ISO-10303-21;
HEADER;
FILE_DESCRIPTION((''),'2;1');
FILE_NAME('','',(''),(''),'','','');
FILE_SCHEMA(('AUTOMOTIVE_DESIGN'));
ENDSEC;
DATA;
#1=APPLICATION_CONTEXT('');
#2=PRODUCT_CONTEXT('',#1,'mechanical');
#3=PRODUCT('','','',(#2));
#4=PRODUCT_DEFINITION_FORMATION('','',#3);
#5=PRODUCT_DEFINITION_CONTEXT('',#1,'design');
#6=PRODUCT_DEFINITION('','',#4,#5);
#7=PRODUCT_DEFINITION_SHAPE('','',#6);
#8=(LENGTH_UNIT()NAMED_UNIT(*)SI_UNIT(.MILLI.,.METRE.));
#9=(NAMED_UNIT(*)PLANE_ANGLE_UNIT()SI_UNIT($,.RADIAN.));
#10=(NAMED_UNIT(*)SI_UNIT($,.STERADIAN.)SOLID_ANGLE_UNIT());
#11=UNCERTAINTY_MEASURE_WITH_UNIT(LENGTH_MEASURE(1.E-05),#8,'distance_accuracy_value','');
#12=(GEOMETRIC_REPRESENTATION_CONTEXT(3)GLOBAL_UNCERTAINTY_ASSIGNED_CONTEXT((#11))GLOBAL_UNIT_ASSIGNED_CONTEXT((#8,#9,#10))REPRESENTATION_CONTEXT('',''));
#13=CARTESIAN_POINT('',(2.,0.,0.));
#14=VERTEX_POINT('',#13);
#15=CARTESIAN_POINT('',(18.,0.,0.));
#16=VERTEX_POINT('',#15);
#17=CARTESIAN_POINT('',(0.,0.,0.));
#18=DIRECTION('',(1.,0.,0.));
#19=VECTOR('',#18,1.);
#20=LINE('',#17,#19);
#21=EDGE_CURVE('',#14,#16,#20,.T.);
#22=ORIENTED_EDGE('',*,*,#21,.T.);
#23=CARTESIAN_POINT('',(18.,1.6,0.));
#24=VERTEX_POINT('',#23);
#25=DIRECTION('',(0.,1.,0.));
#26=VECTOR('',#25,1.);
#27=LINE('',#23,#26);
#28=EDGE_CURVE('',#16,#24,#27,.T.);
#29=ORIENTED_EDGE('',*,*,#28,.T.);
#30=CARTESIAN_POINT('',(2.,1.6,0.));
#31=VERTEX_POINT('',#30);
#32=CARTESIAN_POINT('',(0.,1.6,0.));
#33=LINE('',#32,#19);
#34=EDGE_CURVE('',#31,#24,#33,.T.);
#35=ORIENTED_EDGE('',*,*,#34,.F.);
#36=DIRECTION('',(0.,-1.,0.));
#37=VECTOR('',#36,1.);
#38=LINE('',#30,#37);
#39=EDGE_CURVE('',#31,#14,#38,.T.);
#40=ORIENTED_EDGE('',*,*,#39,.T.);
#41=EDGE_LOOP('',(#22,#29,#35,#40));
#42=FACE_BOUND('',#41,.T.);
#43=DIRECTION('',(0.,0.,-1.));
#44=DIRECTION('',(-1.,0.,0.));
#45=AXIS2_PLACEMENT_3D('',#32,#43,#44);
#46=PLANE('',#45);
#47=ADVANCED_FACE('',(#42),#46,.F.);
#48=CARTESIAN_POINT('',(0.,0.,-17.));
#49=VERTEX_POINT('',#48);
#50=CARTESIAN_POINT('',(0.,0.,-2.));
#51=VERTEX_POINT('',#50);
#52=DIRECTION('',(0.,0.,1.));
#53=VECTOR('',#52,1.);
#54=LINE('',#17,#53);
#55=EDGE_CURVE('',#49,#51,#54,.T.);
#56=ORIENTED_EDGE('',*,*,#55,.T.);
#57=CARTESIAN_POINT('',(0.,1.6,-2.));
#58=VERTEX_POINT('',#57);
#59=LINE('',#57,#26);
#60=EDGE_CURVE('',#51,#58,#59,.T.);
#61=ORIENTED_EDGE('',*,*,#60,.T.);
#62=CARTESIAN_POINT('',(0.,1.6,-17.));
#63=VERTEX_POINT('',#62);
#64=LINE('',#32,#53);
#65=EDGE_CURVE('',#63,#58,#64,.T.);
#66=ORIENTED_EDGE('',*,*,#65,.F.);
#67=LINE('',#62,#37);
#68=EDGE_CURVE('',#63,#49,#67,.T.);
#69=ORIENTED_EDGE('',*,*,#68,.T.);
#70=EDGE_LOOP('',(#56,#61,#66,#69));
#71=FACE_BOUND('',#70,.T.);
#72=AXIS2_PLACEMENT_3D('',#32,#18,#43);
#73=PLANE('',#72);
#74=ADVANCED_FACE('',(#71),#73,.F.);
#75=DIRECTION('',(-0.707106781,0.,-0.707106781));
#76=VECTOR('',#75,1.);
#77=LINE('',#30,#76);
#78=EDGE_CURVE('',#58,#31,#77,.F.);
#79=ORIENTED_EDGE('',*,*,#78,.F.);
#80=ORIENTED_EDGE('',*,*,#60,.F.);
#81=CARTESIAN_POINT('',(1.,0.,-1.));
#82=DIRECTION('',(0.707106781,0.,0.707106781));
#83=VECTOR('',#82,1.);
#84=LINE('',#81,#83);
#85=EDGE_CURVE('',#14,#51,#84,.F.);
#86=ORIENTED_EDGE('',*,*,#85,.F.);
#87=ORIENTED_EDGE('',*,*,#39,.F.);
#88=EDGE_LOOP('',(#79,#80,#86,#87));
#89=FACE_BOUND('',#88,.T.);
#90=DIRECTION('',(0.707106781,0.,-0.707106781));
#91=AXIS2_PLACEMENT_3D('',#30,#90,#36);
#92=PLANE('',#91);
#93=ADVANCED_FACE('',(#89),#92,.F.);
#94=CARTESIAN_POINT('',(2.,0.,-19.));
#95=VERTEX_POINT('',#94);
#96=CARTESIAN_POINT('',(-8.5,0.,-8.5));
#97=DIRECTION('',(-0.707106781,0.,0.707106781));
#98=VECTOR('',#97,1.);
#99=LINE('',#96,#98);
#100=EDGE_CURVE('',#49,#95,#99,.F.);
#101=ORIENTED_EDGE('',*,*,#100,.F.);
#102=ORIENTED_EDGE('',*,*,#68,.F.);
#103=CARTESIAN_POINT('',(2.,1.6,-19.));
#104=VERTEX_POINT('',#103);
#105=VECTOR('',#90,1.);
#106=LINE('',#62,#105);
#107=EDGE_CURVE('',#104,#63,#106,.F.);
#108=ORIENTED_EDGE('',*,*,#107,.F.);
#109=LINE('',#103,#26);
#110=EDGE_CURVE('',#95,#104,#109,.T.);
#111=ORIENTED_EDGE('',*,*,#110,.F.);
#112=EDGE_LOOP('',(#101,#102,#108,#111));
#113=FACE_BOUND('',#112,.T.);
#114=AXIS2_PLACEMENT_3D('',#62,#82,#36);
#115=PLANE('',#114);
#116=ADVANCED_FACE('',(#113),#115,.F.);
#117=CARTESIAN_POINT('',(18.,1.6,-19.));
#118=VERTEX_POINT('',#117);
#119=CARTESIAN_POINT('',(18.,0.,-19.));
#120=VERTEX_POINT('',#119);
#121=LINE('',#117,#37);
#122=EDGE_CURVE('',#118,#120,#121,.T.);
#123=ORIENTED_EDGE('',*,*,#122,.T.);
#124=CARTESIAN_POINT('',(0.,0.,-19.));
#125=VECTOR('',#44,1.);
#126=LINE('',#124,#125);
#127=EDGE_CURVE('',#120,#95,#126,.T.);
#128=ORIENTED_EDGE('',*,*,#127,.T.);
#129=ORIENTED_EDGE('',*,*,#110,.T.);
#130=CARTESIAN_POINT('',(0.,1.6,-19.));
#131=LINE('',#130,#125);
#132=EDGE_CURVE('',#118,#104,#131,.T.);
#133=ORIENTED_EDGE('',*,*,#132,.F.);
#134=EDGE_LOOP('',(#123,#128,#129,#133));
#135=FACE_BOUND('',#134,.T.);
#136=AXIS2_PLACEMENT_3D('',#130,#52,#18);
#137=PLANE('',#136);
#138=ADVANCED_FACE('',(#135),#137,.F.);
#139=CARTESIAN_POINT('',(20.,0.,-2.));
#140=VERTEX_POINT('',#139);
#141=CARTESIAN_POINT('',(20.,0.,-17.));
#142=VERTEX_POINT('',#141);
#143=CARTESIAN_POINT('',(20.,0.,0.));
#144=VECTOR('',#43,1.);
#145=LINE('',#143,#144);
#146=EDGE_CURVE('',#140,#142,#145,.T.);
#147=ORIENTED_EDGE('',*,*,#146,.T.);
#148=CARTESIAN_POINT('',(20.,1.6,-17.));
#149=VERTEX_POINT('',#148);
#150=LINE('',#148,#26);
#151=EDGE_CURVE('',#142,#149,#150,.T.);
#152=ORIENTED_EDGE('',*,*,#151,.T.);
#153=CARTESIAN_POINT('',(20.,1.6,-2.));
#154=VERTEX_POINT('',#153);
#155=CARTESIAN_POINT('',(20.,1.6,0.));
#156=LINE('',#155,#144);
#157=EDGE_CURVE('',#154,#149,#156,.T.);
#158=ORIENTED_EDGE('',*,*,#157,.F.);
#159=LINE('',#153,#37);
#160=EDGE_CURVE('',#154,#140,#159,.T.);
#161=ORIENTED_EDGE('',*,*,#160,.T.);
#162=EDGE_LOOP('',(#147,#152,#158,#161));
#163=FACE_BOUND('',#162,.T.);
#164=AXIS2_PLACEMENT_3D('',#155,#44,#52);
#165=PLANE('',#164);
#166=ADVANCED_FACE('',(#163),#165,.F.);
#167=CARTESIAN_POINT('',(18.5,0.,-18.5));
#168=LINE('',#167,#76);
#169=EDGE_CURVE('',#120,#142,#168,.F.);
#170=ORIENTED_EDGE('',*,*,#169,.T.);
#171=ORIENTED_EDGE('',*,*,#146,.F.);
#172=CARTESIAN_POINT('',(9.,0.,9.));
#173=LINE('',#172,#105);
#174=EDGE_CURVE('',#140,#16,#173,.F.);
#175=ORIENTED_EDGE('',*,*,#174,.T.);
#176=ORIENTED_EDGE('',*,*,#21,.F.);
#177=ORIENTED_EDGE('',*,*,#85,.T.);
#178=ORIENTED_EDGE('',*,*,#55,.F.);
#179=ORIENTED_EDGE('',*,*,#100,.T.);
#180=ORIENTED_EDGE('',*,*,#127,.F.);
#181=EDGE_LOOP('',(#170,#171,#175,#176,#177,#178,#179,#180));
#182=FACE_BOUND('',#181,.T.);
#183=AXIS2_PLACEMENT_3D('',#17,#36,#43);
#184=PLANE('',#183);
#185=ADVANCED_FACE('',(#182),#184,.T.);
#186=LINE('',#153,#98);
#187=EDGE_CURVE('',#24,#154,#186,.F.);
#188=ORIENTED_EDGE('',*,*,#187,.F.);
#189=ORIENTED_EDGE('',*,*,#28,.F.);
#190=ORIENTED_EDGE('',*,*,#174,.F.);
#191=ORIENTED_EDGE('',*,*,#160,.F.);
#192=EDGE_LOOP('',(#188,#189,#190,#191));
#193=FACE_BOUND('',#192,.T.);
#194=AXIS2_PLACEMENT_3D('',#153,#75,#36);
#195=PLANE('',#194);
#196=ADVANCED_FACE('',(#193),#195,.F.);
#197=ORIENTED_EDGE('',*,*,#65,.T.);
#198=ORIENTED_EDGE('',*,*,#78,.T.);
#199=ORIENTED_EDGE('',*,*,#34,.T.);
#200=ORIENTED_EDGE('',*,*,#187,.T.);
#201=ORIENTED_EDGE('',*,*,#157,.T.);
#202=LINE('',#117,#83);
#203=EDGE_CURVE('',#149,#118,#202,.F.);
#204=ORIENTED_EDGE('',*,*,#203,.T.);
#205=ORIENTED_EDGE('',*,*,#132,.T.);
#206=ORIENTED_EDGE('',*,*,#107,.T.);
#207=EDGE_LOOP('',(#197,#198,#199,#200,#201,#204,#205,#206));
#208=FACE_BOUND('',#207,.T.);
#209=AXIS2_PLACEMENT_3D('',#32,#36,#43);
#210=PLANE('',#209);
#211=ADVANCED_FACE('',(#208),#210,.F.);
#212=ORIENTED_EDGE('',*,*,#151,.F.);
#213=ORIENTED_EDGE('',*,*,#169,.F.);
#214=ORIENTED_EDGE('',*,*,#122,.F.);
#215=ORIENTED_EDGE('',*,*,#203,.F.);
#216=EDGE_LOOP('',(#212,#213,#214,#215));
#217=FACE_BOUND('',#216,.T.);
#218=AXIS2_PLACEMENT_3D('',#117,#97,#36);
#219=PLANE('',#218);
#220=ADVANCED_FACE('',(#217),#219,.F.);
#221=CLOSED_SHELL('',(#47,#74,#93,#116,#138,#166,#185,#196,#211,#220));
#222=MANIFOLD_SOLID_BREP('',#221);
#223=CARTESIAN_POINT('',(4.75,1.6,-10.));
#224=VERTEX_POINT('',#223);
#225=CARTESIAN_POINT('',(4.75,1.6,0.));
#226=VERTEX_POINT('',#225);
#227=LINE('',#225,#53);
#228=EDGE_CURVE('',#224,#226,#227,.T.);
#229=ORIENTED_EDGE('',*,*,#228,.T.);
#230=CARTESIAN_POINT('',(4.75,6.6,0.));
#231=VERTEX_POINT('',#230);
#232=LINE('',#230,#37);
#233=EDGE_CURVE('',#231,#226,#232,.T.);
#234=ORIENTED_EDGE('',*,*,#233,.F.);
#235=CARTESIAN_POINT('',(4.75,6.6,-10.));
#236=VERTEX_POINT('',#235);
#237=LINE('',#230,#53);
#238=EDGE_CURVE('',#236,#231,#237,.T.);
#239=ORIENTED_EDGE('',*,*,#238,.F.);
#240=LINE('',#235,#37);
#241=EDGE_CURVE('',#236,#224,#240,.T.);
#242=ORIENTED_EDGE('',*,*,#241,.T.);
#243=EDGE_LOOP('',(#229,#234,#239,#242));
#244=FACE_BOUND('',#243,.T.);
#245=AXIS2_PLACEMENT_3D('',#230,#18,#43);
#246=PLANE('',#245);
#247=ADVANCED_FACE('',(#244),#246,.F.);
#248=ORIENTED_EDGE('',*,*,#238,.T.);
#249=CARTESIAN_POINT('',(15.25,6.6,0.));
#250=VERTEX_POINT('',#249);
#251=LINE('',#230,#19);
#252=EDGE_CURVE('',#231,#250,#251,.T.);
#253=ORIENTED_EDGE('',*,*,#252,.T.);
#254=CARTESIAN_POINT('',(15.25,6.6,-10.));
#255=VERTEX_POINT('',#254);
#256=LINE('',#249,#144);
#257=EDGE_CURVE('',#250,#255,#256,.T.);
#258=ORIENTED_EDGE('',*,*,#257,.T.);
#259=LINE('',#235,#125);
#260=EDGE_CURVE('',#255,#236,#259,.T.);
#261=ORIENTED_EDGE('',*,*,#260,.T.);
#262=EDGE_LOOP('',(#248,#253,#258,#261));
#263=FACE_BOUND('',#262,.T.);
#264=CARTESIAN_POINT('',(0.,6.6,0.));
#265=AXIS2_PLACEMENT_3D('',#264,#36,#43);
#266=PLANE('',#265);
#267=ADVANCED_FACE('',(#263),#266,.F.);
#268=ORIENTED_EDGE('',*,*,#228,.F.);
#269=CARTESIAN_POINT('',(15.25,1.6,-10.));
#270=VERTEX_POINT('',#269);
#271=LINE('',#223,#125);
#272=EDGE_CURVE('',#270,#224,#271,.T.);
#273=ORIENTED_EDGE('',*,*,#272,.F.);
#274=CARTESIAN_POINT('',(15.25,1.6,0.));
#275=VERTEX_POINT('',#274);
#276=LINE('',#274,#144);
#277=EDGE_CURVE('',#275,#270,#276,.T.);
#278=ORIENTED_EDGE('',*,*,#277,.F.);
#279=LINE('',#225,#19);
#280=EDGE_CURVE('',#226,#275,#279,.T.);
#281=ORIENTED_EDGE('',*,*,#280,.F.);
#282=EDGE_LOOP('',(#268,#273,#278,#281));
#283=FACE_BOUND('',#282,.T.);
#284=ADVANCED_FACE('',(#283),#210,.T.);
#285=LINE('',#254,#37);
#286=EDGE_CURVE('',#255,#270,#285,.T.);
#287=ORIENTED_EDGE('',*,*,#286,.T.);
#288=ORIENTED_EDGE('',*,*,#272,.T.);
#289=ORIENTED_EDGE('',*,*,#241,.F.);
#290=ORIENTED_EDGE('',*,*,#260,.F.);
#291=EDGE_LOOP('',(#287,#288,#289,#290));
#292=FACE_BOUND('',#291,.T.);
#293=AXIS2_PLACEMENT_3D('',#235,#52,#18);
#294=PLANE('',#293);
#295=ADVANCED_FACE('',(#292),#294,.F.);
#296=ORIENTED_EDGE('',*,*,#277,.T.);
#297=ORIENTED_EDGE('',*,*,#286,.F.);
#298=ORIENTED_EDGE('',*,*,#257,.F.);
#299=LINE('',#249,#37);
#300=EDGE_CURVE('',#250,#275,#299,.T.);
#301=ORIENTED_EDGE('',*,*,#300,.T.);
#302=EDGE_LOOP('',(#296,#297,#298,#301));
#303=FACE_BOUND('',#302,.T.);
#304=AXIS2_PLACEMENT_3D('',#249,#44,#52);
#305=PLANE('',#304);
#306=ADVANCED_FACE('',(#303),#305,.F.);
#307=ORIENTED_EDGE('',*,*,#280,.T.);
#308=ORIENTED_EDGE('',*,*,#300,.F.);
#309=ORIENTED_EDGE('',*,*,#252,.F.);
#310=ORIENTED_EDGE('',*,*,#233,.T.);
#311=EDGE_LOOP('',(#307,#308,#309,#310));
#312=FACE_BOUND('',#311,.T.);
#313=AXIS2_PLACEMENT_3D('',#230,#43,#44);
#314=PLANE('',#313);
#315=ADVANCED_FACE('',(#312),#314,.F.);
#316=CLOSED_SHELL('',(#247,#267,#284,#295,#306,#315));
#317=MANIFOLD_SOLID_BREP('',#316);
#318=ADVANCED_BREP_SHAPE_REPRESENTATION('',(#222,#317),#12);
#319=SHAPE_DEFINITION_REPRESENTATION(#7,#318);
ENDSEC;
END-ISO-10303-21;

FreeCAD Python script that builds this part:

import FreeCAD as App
import Part
import Sketcher

V = App.Vector
Q = App.Units.Quantity


def edges_at(feature, points):
    """Names of the edges that pass closest to the given points."""
    edges = feature.Shape.Edges
    near = lambda p: min(range(len(edges)), key=lambda i: edges[i].distToShape(Part.Vertex(*p))[0])
    return sorted({f"Edge{near(p) + 1}" for p in points})

doc = App.newDocument("Part")
body = doc.addObject("PartDesign::Body", "Body")

sketch1 = body.newObject("Sketcher::SketchObject", "Sketch")
sketch1.AttachmentSupport = (doc.getObject("XZ_Plane"), [""])
sketch1.MapMode = "FlatFace"
sketch1.addGeometry([
    Part.LineSegment(V(0, -19, 0), V(0, 0, 0)),
    Part.LineSegment(V(0, 0, 0), V(20, 0, 0)),
    Part.LineSegment(V(20, 0, 0), V(20, -19, 0)),
    Part.LineSegment(V(20, -19, 0), V(0, -19, 0)),
], False)
sketch1.addConstraint([
    Sketcher.Constraint("Coincident", 0, 2, 1, 1),
    Sketcher.Constraint("Coincident", 1, 2, 2, 1),
    Sketcher.Constraint("Coincident", 2, 2, 3, 1),
    Sketcher.Constraint("Coincident", 3, 2, 0, 1),
    Sketcher.Constraint("Vertical", 0),
    Sketcher.Constraint("Horizontal", 1),
    Sketcher.Constraint("Vertical", 2),
    Sketcher.Constraint("Horizontal", 3),
    Sketcher.Constraint("Coincident", 0, 2, -1, 1),
    Sketcher.Constraint("DistanceX", 1, 1, 1, 2, Q("20 mm")),
    Sketcher.Constraint("DistanceY", 0, 1, 0, 2, Q("19 mm")),
])
pad1 = body.newObject("PartDesign::Pad", "Pad")
pad1.Profile = sketch1
pad1.Length = 1.6
pad1.Reversed = True
doc.recompute()

chamfer = body.newObject("PartDesign::Chamfer", "Chamfer")
chamfer.Base = (pad1, edges_at(pad1, [
    (0, 0.8, -19),
    (20, 0.8, -19),
    (20, 0.8, 0),
    (0, 0.8, 0),
]))
chamfer.Size = 2
body2 = doc.addObject("PartDesign::Body", "Body001")

sketch2 = body2.newObject("Sketcher::SketchObject", "Sketch001")
sketch2.AttachmentSupport = (doc.getObject("XZ_Plane001"), [""])
sketch2.MapMode = "FlatFace"
sketch2.AttachmentOffset = App.Placement(V(0, 0, -1.6), App.Rotation())
sketch2.addGeometry([
    Part.LineSegment(V(5, -10, 0), V(5, 0, 0)),
    Part.LineSegment(V(5, 0, 0), V(15, 0, 0)),
    Part.LineSegment(V(15, 0, 0), V(15, -10, 0)),
    Part.LineSegment(V(15, -10, 0), V(5, -10, 0)),
], False)
sketch2.addConstraint([
    Sketcher.Constraint("Coincident", 0, 2, 1, 1),
    Sketcher.Constraint("Coincident", 1, 2, 2, 1),
    Sketcher.Constraint("Coincident", 2, 2, 3, 1),
    Sketcher.Constraint("Coincident", 3, 2, 0, 1),
    Sketcher.Constraint("Vertical", 0),
    Sketcher.Constraint("Horizontal", 1),
    Sketcher.Constraint("Vertical", 2),
    Sketcher.Constraint("Horizontal", 3),
    Sketcher.Constraint("PointOnObject", 0, 2, -1),
    Sketcher.Constraint("DistanceY", 0, 1, 0, 2, Q("10 mm")),
    Sketcher.Constraint("DistanceX", 1, 1, 1, 2, Q("10.5 mm")),
    Sketcher.Constraint("DistanceX", -1, 1, 0, 2, Q("4.75 mm")),
])
pad2 = body2.newObject("PartDesign::Pad", "Pad001")
pad2.Profile = sketch2
pad2.Length = 5
pad2.Reversed = True

doc.recompute()
